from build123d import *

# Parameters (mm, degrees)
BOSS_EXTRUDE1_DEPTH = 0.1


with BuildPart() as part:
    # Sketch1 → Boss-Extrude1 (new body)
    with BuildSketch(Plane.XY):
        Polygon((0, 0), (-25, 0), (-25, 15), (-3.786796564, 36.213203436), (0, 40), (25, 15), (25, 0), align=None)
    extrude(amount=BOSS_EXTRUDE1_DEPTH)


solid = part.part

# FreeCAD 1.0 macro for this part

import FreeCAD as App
import Part
import Sketcher

V = App.Vector
Q = App.Units.Quantity


def add_polygon(sketch, points):
    """Adds a closed chain of lines whose ends are joined by coincident constraints."""
    first, n = sketch.GeometryCount, len(points)
    for a, b in zip(points, points[1:] + points[:1]):
        sketch.addGeometry(Part.LineSegment(App.Vector(*a, 0), App.Vector(*b, 0)), False)
    for i in range(n):
        sketch.addConstraint(Sketcher.Constraint("Coincident", first + i, 2, first + (i + 1) % n, 1))

doc = App.newDocument("Part")
params = doc.addObject("Spreadsheet::Sheet", "Params")
for row, (alias, value) in enumerate([
    ("sketch1_width", "50 mm"),
    ("sketch1_height", "15 mm"),
    ("pad1_length", "0.1 mm"),
], start=1):
    params.set(f"A{row}", alias)
    params.set(f"B{row}", "=" + value)
    params.setAlias(f"B{row}", alias)

body = doc.addObject("PartDesign::Body", "Body")

sketch1 = body.newObject("Sketcher::SketchObject", "Sketch")
sketch1.AttachmentSupport = (doc.getObject("XY_Plane"), [""])
sketch1.MapMode = "FlatFace"
add_polygon(sketch1, [(-25, 0), (25, 0), (25, 15), (0, 40), (-25, 15)])
sketch1.addConstraint(Sketcher.Constraint("Horizontal", 0))
sketch1.addConstraint(Sketcher.Constraint("Vertical", 1))
sketch1.addConstraint(Sketcher.Constraint("Vertical", 4))
sketch1.addConstraint(Sketcher.Constraint("Symmetric", 0, 2, 4, 2, -1, 1))
sketch1.addConstraint(Sketcher.Constraint("PointOnObject", 2, 2, -2))
sketch1.addConstraint(Sketcher.Constraint("Perpendicular", 2, 3))
sketch1.addConstraint(Sketcher.Constraint("Horizontal", 1, 2, 3, 2))
sketch1.addConstraint(Sketcher.Constraint("DistanceX", 0, 1, 0, 2, Q("50 mm")))
sketch1.addConstraint(Sketcher.Constraint("DistanceY", 1, 1, 1, 2, Q("15 mm")))
sketch1.setExpression("Constraints[12]", "Params.sketch1_width")
sketch1.setExpression("Constraints[13]", "Params.sketch1_height")
pad1 = body.newObject("PartDesign::Pad", "Pad")
pad1.Profile = sketch1
pad1.setExpression("Length", "Params.pad1_length")

doc.recompute()
